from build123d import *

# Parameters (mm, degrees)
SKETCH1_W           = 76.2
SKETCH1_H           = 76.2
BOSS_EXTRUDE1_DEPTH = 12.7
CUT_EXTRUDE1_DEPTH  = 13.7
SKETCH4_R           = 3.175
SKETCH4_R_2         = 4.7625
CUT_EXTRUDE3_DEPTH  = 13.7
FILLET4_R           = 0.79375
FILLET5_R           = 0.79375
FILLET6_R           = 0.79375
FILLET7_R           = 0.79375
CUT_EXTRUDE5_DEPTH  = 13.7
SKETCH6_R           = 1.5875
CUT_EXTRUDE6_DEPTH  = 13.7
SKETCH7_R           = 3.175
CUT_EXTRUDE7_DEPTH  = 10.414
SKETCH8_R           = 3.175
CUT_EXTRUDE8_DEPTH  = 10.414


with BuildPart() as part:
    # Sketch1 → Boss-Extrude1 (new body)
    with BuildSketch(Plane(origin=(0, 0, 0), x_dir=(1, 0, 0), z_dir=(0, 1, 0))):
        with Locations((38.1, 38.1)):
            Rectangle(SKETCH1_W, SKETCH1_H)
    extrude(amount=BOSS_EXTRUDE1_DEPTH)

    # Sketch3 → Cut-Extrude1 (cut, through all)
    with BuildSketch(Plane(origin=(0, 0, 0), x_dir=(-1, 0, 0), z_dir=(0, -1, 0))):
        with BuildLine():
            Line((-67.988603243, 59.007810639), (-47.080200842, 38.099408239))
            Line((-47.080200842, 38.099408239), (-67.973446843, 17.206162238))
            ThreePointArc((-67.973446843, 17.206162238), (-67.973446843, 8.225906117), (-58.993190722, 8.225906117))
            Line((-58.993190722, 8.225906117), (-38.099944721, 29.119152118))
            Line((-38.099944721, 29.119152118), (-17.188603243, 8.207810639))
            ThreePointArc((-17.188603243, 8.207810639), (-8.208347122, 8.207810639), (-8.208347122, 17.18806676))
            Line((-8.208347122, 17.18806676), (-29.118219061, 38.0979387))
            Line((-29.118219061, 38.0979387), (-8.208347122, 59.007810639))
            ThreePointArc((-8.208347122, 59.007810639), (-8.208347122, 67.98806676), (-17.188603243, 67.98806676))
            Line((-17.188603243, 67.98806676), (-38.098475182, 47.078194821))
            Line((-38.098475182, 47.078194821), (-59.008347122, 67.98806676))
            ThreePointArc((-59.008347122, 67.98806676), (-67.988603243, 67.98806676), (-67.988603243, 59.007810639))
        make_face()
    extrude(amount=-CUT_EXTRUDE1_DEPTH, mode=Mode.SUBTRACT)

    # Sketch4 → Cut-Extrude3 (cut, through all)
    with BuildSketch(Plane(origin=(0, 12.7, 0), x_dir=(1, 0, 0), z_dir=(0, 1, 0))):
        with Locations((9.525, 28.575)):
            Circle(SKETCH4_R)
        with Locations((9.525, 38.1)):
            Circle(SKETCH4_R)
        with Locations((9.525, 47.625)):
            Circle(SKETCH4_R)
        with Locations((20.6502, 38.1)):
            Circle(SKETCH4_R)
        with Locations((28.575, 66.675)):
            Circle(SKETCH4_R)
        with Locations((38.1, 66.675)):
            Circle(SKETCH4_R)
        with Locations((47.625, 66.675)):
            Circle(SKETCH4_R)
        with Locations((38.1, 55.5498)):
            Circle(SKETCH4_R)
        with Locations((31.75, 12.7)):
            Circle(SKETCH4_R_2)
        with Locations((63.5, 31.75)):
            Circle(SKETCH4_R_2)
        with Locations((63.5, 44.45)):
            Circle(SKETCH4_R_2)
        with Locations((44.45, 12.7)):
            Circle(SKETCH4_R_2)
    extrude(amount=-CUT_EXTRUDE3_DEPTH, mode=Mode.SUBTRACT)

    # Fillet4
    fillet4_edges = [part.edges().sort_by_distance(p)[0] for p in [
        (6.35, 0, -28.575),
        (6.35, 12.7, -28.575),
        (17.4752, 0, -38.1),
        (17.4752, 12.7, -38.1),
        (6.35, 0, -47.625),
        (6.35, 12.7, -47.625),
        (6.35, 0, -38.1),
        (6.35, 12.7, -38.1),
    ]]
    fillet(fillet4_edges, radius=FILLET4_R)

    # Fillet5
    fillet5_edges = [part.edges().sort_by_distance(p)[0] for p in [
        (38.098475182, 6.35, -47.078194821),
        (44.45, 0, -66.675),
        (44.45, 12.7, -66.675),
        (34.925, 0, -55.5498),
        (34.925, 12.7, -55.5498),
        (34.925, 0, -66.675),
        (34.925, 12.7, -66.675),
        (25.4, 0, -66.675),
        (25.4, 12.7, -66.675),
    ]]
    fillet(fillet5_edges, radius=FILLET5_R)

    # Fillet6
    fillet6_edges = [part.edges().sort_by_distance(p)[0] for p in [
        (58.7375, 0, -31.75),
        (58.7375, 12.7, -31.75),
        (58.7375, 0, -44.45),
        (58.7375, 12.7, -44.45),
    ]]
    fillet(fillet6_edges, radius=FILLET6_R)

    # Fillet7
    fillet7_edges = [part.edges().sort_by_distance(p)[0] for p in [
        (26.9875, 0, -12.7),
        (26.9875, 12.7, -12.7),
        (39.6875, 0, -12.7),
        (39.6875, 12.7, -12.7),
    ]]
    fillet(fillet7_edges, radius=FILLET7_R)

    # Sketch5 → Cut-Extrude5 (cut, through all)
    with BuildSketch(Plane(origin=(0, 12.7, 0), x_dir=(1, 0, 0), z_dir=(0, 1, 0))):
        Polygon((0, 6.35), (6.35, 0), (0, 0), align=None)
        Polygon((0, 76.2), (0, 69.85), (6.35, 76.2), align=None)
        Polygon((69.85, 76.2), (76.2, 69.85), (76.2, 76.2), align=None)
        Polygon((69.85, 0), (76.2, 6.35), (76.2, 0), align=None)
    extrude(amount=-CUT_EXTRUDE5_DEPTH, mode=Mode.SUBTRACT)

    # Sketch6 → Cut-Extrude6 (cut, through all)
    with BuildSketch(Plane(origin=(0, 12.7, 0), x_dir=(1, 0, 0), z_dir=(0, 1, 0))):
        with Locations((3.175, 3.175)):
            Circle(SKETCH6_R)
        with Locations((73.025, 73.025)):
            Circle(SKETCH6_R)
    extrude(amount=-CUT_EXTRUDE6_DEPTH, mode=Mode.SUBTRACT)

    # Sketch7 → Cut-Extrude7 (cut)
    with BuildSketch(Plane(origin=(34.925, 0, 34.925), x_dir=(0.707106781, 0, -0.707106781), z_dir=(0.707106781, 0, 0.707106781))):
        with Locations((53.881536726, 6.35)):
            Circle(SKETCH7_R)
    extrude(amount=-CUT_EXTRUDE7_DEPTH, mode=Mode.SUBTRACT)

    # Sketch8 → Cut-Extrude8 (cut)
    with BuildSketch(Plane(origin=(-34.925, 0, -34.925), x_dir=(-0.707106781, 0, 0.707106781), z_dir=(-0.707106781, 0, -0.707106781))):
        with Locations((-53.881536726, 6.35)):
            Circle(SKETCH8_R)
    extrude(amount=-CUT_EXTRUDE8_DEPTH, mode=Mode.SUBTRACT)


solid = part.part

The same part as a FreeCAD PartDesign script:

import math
import FreeCAD as App
import Part
import Sketcher

V = App.Vector
Q = App.Units.Quantity


def edges_at(feature, points):
    """Names of the edges that pass closest to the given points."""
    edges = feature.Shape.Edges
    near = lambda p: min(range(len(edges)), key=lambda i: edges[i].distToShape(Part.Vertex(*p))[0])
    return sorted({f"Edge{near(p) + 1}" for p in points})


def add_polygon(sketch, points):
    """Adds a closed chain of lines whose ends are joined by coincident constraints."""
    first, n = sketch.GeometryCount, len(points)
    for a, b in zip(points, points[1:] + points[:1]):
        sketch.addGeometry(Part.LineSegment(App.Vector(*a, 0), App.Vector(*b, 0)), False)
    for i in range(n):
        sketch.addConstraint(Sketcher.Constraint("Coincident", first + i, 2, first + (i + 1) % n, 1))

doc = App.newDocument("Part")
body = doc.addObject("PartDesign::Body", "Body")

sketch1 = body.newObject("Sketcher::SketchObject", "Sketch")
sketch1.AttachmentSupport = (doc.getObject("XZ_Plane"), [""])
sketch1.MapMode = "FlatFace"
add_polygon(sketch1, [(0, -76), (0, 0), (76, 0), (76, -76)])
sketch1.addConstraint([
    Sketcher.Constraint("Vertical", 0),
    Sketcher.Constraint("Horizontal", 1),
    Sketcher.Constraint("Vertical", 2),
    Sketcher.Constraint("Horizontal", 3),
    Sketcher.Constraint("Coincident", 0, 2, -1, 1),
    Sketcher.Constraint("Equal", 3, 0),
    Sketcher.Constraint("DistanceX", 1, 1, 1, 2, Q("3 in")),
])
pad1 = body.newObject("PartDesign::Pad", "Pad")
pad1.Profile = sketch1
pad1.Length = Q("0.5 in")
pad1.Reversed = True

sketch2 = body.newObject("Sketcher::SketchObject", "Sketch001")
sketch2.AttachmentSupport = (doc.getObject("XZ_Plane"), [""])
sketch2.MapMode = "FlatFace"
sketch2.addGeometry([
    Part.LineSegment(V(68, -59, 0), V(47, -38, 0)),
    Part.LineSegment(V(47, -38, 0), V(68, -17, 0)),
    Part.ArcOfCircle(Part.Circle(V(63, -13, 0), V(0, 0, 1), 6), math.radians(-45), math.radians(135)),
    Part.LineSegment(V(59, -8, 0), V(38, -29, 0)),
    Part.LineSegment(V(38, -29, 0), V(17, -8, 0)),
    Part.ArcOfCircle(Part.Circle(V(13, -13, 0), V(0, 0, 1), 6), math.radians(45), math.radians(225)),
    Part.LineSegment(V(8, -17, 0), V(29, -38, 0)),
    Part.LineSegment(V(29, -38, 0), V(8, -59, 0)),
    Part.ArcOfCircle(Part.Circle(V(13, -63, 0), V(0, 0, 1), 6), math.radians(135), math.radians(315)),
    Part.LineSegment(V(17, -68, 0), V(38, -47, 0)),
    Part.LineSegment(V(38, -47, 0), V(59, -68, 0)),
    Part.ArcOfCircle(Part.Circle(V(63, -63, 0), V(0, 0, 1), 6), math.radians(-135), math.radians(45)),
], False)
sketch2.addConstraint([
    Sketcher.Constraint("Coincident", 0, 2, 1, 1),
    Sketcher.Constraint("Tangent", 1, 2, 2, 1),
    Sketcher.Constraint("Tangent", 2, 2, 3, 1),
    Sketcher.Constraint("Coincident", 3, 2, 4, 1),
    Sketcher.Constraint("Tangent", 4, 2, 5, 1),
    Sketcher.Constraint("Tangent", 5, 2, 6, 1),
    Sketcher.Constraint("Coincident", 6, 2, 7, 1),
    Sketcher.Constraint("Tangent", 7, 2, 8, 1),
    Sketcher.Constraint("Tangent", 8, 2, 9, 1),
    Sketcher.Constraint("Coincident", 9, 2, 10, 1),
    Sketcher.Constraint("Tangent", 10, 2, 11, 1),
    Sketcher.Constraint("Tangent", 11, 2, 0, 1),
    Sketcher.Constraint("Equal", 2, 5),
    Sketcher.Constraint("Equal", 5, 8),
    Sketcher.Constraint("Equal", 8, 11),
    Sketcher.Constraint("Perpendicular", 0, 1),
    Sketcher.Constraint("Parallel", 1, 3),
    Sketcher.Constraint("Perpendicular", 3, 4),
    Sketcher.Constraint("Parallel", 4, 6),
    Sketcher.Constraint("Perpendicular", 6, 7),
    Sketcher.Constraint("Parallel", 7, 9),
    Sketcher.Constraint("Perpendicular", 9, 10),
    Sketcher.Constraint("Horizontal", 8, 3, 11, 3),
    Sketcher.Constraint("Horizontal", 8, 2, 10, 2),
    Sketcher.Constraint("Vertical", 5, 3, 8, 3),
    Sketcher.Constraint("Equal", 1, 3),
    Sketcher.Constraint("Radius", 2, Q("0.25 in")),
    Sketcher.Constraint("DistanceY", 8, 3, 5, 3, Q("2 in")),
    Sketcher.Constraint("DistanceX", -1, 1, 0, 2, Q("47.080201 mm")),
    Sketcher.Constraint("Distance", 1, Q("29.547512 mm")),
    Sketcher.Constraint("DistanceY", 5, 3, -1, 1, Q("12.697939 mm")),
    Sketcher.Constraint("DistanceY", 0, 2, -1, 1, Q("38.099408 mm")),
])
pocket1 = body.newObject("PartDesign::Pocket", "Pocket")
pocket1.Profile = sketch2
pocket1.Type = "ThroughAll"

sketch3 = body.newObject("Sketcher::SketchObject", "Sketch002")
sketch3.AttachmentSupport = (doc.getObject("XZ_Plane"), [""])
sketch3.MapMode = "FlatFace"
sketch3.AttachmentOffset = App.Placement(V(0, 0, -0.5 * 25.4), App.Rotation())
sketch3.addGeometry([
    Part.Circle(V(9.5, -28.6, 0), V(0, 0, 1), 3.2),
    Part.Circle(V(9.5, -38.1, 0), V(0, 0, 1), 3.2),
    Part.Circle(V(9.5, -47.6, 0), V(0, 0, 1), 3.2),
    Part.Circle(V(20.7, -38.1, 0), V(0, 0, 1), 3.2),
    Part.Circle(V(28.6, -66.7, 0), V(0, 0, 1), 3.2),
    Part.Circle(V(38.1, -66.7, 0), V(0, 0, 1), 3.2),
    Part.Circle(V(47.6, -66.7, 0), V(0, 0, 1), 3.2),
    Part.Circle(V(38.1, -55.5, 0), V(0, 0, 1), 3.2),
    Part.Circle(V(31.8, -12.7, 0), V(0, 0, 1), 4.8),
    Part.Circle(V(63.5, -31.8, 0), V(0, 0, 1), 4.8),
    Part.Circle(V(63.5, -44.5, 0), V(0, 0, 1), 4.8),
    Part.Circle(V(44.5, -12.7, 0), V(0, 0, 1), 4.8),
], False)
sketch3.addConstraint([
    Sketcher.Constraint("Equal", 0, 1),
    Sketcher.Constraint("Equal", 1, 2),
    Sketcher.Constraint("Equal", 2, 3),
    Sketcher.Constraint("Equal", 3, 4),
    Sketcher.Constraint("Equal", 4, 5),
    Sketcher.Constraint("Equal", 5, 6),
    Sketcher.Constraint("Equal", 6, 7),
    Sketcher.Constraint("Equal", 8, 9),
    Sketcher.Constraint("Equal", 9, 10),
    Sketcher.Constraint("Equal", 10, 11),
    Sketcher.Constraint("Horizontal", 1, 3, 3, 3),
    Sketcher.Constraint("Horizontal", 4, 3, 5, 3),
    Sketcher.Constraint("Horizontal", 5, 3, 6, 3),
    Sketcher.Constraint("Horizontal", 8, 3, 11, 3),
    Sketcher.Constraint("Vertical", 0, 3, 1, 3),
    Sketcher.Constraint("Vertical", 1, 3, 2, 3),
    Sketcher.Constraint("Vertical", 5, 3, 7, 3),
    Sketcher.Constraint("Vertical", 9, 3, 10, 3),
    Sketcher.Constraint("Diameter", 0, Q("0.25 in")),
    Sketcher.Constraint("Diameter", 8, Q("0.375 in")),
    Sketcher.Constraint("DistanceY", 3, 3, 8, 3, Q("1 in")),
    Sketcher.Constraint("DistanceX", 7, 3, 9, 3, Q("1 in")),
    Sketcher.Constraint("DistanceY", 1, 3, -1, 1, Q("1.5 in")),
    Sketcher.Constraint("DistanceX", -1, 1, 5, 3, Q("1.5 in")),
    Sketcher.Constraint("DistanceY", 4, 3, 0, 3, Q("1.5 in")),
    Sketcher.Constraint("DistanceX", 2, 3, 6, 3, Q("1.5 in")),
    Sketcher.Constraint("DistanceY", 10, 3, 9, 3, Q("0.5 in")),
    Sketcher.Constraint("DistanceX", 8, 3, 11, 3, Q("0.5 in")),
    Sketcher.Constraint("DistanceX", -1, 1, 8, 3, Q("1.25 in")),
    Sketcher.Constraint("DistanceY", 9, 3, -1, 1, Q("1.25 in")),
    Sketcher.Constraint("DistanceY", 2, 3, 0, 3, Q("0.75 in")),
    Sketcher.Constraint("DistanceX", 2, 3, 4, 3, Q("0.75 in")),
    Sketcher.Constraint("DistanceX", -1, 1, 0, 3, Q("0.375 in")),
    Sketcher.Constraint("DistanceY", 0, 3, -1, 1, Q("1.125 in")),
    Sketcher.Constraint("DistanceX", -1, 1, 3, 3, Q("0.813 in")),
    Sketcher.Constraint("DistanceY", 7, 3, -1, 1, Q("2.187 in")),
])
pocket2 = body.newObject("PartDesign::Pocket", "Pocket001")
pocket2.Profile = sketch3
pocket2.Type = "ThroughAll"
pocket2.Reversed = True
doc.recompute()

fillet = body.newObject("PartDesign::Fillet", "Fillet")
fillet.Base = (pocket2, edges_at(pocket2, [
    (6.35, 0, -28.575),
    (6.35, 12.7, -28.575),
    (17.475, 0, -38.1),
    (17.475, 12.7, -38.1),
    (6.35, 0, -47.625),
    (6.35, 12.7, -47.625),
    (6.35, 0, -38.1),
    (6.35, 12.7, -38.1),
]))
fillet.Radius = Q("0.03125 in")
doc.recompute()

fillet2 = body.newObject("PartDesign::Fillet", "Fillet001")
fillet2.Base = (fillet, edges_at(fillet, [
    (38.098, 6.35, -47.078),
    (44.45, 0, -66.675),
    (44.45, 12.7, -66.675),
    (34.925, 0, -55.55),
    (34.925, 12.7, -55.55),
    (34.925, 0, -66.675),
    (34.925, 12.7, -66.675),
    (25.4, 0, -66.675),
    (25.4, 12.7, -66.675),
]))
fillet2.Radius = Q("0.03125 in")
doc.recompute()

fillet3 = body.newObject("PartDesign::Fillet", "Fillet002")
fillet3.Base = (fillet2, edges_at(fillet2, [
    (58.737, 0, -31.75),
    (58.737, 12.7, -31.75),
    (58.737, 0, -44.45),
    (58.737, 12.7, -44.45),
]))
fillet3.Radius = Q("0.03125 in")
doc.recompute()

fillet4 = body.newObject("PartDesign::Fillet", "Fillet003")
fillet4.Base = (fillet3, edges_at(fillet3, [
    (26.988, 0, -12.7),
    (26.988, 12.7, -12.7),
    (39.688, 0, -12.7),
    (39.688, 12.7, -12.7),
]))
fillet4.Radius = Q("0.03125 in")

sketch4 = body.newObject("Sketcher::SketchObject", "Sketch003")
sketch4.AttachmentSupport = (doc.getObject("XZ_Plane"), [""])
sketch4.MapMode = "FlatFace"
sketch4.AttachmentOffset = App.Placement(V(0, 0, -0.5 * 25.4), App.Rotation())
add_polygon(sketch4, [(6, 0), (0, -6), (0, 0)])
add_polygon(sketch4, [(0, -76), (0, -70), (6, -76)])
add_polygon(sketch4, [(70, -76), (76, -70), (76, -76)])
add_polygon(sketch4, [(76, -6), (70, 0), (76, 0)])
sketch4.addConstraint([
    Sketcher.Constraint("Vertical", 1),
    Sketcher.Constraint("Horizontal", 2),
    Sketcher.Constraint("Vertical", 3),
    Sketcher.Constraint("Horizontal", 5),
    Sketcher.Constraint("Vertical", 7),
    Sketcher.Constraint("Horizontal", 8),
    Sketcher.Constraint("Horizontal", 10),
    Sketcher.Constraint("Vertical", 11),
    Sketcher.Constraint("Coincident", 1, 2, -1, 1),
    Sketcher.Constraint("PointOnObject", 3, 2, -2),
    Sketcher.Constraint("PointOnObject", 9, 2, -1),
    Sketcher.Constraint("Perpendicular", 0, 4),
    Sketcher.Constraint("Perpendicular", 4, 6),
    Sketcher.Constraint("Perpendicular", 6, 9),
    Sketcher.Constraint("Horizontal", 3, 2, 6, 2),
    Sketcher.Constraint("Horizontal", 5, 2, 7, 2),
    Sketcher.Constraint("Horizontal", 0, 2, 11, 2),
    Sketcher.Constraint("Vertical", 2, 2, 4, 2),
    Sketcher.Constraint("Vertical", 8, 2, 9, 2),
    Sketcher.Constraint("Vertical", 7, 2, 10, 2),
    Sketcher.Constraint("DistanceY", 4, 2, -1, 1, Q("3 in")),
    Sketcher.Constraint("DistanceX", -1, 1, 6, 2, Q("3 in")),
    Sketcher.Constraint("DistanceX", 2, 1, 2, 2, Q("0.25 in")),
])
pocket3 = body.newObject("PartDesign::Pocket", "Pocket002")
pocket3.Profile = sketch4
pocket3.Type = "ThroughAll"
pocket3.Reversed = True

sketch5 = body.newObject("Sketcher::SketchObject", "Sketch004")
sketch5.AttachmentSupport = (doc.getObject("XZ_Plane"), [""])
sketch5.MapMode = "FlatFace"
sketch5.AttachmentOffset = App.Placement(V(0, 0, -0.5 * 25.4), App.Rotation())
sketch5.addGeometry([
    Part.Circle(V(3.2, -3.2, 0), V(0, 0, 1), 1.6),
    Part.Circle(V(73, -73, 0), V(0, 0, 1), 1.6),
], False)
sketch5.addConstraint([
    Sketcher.Constraint("Equal", 0, 1),
    Sketcher.Constraint("Diameter", 0, Q("0.125 in")),
    Sketcher.Constraint("DistanceX", 0, 3, 1, 3, Q("2.75 in")),
    Sketcher.Constraint("DistanceY", 1, 3, 0, 3, Q("2.75 in")),
    Sketcher.Constraint("DistanceX", -1, 1, 0, 3, Q("0.125 in")),
    Sketcher.Constraint("DistanceY", 0, 3, -1, 1, Q("0.125 in")),
])
pocket4 = body.newObject("PartDesign::Pocket", "Pocket003")
pocket4.Profile = sketch5
pocket4.Type = "ThroughAll"
pocket4.Reversed = True

sketch6 = body.newObject("Sketcher::SketchObject", "Sketch005")
sketch6.Placement = App.Placement(V(34.925, 0, 34.925), App.Rotation(V(0.707106781, 0, -0.707106781), V(0, 0.999999999, 0), V(0.707106781, 0, 0.707106781), "ZXY"))
sketch6.addGeometry(Part.Circle(V(53.9, 6.3, 0), V(0, 0, 1), 3.2), False)
sketch6.addConstraint([
    Sketcher.Constraint("Diameter", 0, Q("0.25 in")),
    Sketcher.Constraint("DistanceY", -1, 1, 0, 3, Q("0.25 in")),
    Sketcher.Constraint("DistanceX", -1, 1, 0, 3, Q("53.881537 mm")),
])
pocket5 = body.newObject("PartDesign::Pocket", "Pocket004")
pocket5.Profile = sketch6
pocket5.Length = Q("0.41 in")

sketch7 = body.newObject("Sketcher::SketchObject", "Sketch006")
sketch7.Placement = App.Placement(V(-34.925, 0, -34.925), App.Rotation(V(-0.707106781, 0, 0.707106781), V(0, 0.999999999, 0), V(-0.707106781, 0, -0.707106781), "ZXY"))
sketch7.addGeometry(Part.Circle(V(-53.9, 6.3, 0), V(0, 0, 1), 3.2), False)
sketch7.addConstraint([
    Sketcher.Constraint("Diameter", 0, Q("0.25 in")),
    Sketcher.Constraint("DistanceY", -1, 1, 0, 3, Q("0.25 in")),
    Sketcher.Constraint("DistanceX", 0, 3, -1, 1, Q("53.881537 mm")),
])
pocket6 = body.newObject("PartDesign::Pocket", "Pocket005")
pocket6.Profile = sketch7
pocket6.Length = Q("0.41 in")

doc.recompute()
